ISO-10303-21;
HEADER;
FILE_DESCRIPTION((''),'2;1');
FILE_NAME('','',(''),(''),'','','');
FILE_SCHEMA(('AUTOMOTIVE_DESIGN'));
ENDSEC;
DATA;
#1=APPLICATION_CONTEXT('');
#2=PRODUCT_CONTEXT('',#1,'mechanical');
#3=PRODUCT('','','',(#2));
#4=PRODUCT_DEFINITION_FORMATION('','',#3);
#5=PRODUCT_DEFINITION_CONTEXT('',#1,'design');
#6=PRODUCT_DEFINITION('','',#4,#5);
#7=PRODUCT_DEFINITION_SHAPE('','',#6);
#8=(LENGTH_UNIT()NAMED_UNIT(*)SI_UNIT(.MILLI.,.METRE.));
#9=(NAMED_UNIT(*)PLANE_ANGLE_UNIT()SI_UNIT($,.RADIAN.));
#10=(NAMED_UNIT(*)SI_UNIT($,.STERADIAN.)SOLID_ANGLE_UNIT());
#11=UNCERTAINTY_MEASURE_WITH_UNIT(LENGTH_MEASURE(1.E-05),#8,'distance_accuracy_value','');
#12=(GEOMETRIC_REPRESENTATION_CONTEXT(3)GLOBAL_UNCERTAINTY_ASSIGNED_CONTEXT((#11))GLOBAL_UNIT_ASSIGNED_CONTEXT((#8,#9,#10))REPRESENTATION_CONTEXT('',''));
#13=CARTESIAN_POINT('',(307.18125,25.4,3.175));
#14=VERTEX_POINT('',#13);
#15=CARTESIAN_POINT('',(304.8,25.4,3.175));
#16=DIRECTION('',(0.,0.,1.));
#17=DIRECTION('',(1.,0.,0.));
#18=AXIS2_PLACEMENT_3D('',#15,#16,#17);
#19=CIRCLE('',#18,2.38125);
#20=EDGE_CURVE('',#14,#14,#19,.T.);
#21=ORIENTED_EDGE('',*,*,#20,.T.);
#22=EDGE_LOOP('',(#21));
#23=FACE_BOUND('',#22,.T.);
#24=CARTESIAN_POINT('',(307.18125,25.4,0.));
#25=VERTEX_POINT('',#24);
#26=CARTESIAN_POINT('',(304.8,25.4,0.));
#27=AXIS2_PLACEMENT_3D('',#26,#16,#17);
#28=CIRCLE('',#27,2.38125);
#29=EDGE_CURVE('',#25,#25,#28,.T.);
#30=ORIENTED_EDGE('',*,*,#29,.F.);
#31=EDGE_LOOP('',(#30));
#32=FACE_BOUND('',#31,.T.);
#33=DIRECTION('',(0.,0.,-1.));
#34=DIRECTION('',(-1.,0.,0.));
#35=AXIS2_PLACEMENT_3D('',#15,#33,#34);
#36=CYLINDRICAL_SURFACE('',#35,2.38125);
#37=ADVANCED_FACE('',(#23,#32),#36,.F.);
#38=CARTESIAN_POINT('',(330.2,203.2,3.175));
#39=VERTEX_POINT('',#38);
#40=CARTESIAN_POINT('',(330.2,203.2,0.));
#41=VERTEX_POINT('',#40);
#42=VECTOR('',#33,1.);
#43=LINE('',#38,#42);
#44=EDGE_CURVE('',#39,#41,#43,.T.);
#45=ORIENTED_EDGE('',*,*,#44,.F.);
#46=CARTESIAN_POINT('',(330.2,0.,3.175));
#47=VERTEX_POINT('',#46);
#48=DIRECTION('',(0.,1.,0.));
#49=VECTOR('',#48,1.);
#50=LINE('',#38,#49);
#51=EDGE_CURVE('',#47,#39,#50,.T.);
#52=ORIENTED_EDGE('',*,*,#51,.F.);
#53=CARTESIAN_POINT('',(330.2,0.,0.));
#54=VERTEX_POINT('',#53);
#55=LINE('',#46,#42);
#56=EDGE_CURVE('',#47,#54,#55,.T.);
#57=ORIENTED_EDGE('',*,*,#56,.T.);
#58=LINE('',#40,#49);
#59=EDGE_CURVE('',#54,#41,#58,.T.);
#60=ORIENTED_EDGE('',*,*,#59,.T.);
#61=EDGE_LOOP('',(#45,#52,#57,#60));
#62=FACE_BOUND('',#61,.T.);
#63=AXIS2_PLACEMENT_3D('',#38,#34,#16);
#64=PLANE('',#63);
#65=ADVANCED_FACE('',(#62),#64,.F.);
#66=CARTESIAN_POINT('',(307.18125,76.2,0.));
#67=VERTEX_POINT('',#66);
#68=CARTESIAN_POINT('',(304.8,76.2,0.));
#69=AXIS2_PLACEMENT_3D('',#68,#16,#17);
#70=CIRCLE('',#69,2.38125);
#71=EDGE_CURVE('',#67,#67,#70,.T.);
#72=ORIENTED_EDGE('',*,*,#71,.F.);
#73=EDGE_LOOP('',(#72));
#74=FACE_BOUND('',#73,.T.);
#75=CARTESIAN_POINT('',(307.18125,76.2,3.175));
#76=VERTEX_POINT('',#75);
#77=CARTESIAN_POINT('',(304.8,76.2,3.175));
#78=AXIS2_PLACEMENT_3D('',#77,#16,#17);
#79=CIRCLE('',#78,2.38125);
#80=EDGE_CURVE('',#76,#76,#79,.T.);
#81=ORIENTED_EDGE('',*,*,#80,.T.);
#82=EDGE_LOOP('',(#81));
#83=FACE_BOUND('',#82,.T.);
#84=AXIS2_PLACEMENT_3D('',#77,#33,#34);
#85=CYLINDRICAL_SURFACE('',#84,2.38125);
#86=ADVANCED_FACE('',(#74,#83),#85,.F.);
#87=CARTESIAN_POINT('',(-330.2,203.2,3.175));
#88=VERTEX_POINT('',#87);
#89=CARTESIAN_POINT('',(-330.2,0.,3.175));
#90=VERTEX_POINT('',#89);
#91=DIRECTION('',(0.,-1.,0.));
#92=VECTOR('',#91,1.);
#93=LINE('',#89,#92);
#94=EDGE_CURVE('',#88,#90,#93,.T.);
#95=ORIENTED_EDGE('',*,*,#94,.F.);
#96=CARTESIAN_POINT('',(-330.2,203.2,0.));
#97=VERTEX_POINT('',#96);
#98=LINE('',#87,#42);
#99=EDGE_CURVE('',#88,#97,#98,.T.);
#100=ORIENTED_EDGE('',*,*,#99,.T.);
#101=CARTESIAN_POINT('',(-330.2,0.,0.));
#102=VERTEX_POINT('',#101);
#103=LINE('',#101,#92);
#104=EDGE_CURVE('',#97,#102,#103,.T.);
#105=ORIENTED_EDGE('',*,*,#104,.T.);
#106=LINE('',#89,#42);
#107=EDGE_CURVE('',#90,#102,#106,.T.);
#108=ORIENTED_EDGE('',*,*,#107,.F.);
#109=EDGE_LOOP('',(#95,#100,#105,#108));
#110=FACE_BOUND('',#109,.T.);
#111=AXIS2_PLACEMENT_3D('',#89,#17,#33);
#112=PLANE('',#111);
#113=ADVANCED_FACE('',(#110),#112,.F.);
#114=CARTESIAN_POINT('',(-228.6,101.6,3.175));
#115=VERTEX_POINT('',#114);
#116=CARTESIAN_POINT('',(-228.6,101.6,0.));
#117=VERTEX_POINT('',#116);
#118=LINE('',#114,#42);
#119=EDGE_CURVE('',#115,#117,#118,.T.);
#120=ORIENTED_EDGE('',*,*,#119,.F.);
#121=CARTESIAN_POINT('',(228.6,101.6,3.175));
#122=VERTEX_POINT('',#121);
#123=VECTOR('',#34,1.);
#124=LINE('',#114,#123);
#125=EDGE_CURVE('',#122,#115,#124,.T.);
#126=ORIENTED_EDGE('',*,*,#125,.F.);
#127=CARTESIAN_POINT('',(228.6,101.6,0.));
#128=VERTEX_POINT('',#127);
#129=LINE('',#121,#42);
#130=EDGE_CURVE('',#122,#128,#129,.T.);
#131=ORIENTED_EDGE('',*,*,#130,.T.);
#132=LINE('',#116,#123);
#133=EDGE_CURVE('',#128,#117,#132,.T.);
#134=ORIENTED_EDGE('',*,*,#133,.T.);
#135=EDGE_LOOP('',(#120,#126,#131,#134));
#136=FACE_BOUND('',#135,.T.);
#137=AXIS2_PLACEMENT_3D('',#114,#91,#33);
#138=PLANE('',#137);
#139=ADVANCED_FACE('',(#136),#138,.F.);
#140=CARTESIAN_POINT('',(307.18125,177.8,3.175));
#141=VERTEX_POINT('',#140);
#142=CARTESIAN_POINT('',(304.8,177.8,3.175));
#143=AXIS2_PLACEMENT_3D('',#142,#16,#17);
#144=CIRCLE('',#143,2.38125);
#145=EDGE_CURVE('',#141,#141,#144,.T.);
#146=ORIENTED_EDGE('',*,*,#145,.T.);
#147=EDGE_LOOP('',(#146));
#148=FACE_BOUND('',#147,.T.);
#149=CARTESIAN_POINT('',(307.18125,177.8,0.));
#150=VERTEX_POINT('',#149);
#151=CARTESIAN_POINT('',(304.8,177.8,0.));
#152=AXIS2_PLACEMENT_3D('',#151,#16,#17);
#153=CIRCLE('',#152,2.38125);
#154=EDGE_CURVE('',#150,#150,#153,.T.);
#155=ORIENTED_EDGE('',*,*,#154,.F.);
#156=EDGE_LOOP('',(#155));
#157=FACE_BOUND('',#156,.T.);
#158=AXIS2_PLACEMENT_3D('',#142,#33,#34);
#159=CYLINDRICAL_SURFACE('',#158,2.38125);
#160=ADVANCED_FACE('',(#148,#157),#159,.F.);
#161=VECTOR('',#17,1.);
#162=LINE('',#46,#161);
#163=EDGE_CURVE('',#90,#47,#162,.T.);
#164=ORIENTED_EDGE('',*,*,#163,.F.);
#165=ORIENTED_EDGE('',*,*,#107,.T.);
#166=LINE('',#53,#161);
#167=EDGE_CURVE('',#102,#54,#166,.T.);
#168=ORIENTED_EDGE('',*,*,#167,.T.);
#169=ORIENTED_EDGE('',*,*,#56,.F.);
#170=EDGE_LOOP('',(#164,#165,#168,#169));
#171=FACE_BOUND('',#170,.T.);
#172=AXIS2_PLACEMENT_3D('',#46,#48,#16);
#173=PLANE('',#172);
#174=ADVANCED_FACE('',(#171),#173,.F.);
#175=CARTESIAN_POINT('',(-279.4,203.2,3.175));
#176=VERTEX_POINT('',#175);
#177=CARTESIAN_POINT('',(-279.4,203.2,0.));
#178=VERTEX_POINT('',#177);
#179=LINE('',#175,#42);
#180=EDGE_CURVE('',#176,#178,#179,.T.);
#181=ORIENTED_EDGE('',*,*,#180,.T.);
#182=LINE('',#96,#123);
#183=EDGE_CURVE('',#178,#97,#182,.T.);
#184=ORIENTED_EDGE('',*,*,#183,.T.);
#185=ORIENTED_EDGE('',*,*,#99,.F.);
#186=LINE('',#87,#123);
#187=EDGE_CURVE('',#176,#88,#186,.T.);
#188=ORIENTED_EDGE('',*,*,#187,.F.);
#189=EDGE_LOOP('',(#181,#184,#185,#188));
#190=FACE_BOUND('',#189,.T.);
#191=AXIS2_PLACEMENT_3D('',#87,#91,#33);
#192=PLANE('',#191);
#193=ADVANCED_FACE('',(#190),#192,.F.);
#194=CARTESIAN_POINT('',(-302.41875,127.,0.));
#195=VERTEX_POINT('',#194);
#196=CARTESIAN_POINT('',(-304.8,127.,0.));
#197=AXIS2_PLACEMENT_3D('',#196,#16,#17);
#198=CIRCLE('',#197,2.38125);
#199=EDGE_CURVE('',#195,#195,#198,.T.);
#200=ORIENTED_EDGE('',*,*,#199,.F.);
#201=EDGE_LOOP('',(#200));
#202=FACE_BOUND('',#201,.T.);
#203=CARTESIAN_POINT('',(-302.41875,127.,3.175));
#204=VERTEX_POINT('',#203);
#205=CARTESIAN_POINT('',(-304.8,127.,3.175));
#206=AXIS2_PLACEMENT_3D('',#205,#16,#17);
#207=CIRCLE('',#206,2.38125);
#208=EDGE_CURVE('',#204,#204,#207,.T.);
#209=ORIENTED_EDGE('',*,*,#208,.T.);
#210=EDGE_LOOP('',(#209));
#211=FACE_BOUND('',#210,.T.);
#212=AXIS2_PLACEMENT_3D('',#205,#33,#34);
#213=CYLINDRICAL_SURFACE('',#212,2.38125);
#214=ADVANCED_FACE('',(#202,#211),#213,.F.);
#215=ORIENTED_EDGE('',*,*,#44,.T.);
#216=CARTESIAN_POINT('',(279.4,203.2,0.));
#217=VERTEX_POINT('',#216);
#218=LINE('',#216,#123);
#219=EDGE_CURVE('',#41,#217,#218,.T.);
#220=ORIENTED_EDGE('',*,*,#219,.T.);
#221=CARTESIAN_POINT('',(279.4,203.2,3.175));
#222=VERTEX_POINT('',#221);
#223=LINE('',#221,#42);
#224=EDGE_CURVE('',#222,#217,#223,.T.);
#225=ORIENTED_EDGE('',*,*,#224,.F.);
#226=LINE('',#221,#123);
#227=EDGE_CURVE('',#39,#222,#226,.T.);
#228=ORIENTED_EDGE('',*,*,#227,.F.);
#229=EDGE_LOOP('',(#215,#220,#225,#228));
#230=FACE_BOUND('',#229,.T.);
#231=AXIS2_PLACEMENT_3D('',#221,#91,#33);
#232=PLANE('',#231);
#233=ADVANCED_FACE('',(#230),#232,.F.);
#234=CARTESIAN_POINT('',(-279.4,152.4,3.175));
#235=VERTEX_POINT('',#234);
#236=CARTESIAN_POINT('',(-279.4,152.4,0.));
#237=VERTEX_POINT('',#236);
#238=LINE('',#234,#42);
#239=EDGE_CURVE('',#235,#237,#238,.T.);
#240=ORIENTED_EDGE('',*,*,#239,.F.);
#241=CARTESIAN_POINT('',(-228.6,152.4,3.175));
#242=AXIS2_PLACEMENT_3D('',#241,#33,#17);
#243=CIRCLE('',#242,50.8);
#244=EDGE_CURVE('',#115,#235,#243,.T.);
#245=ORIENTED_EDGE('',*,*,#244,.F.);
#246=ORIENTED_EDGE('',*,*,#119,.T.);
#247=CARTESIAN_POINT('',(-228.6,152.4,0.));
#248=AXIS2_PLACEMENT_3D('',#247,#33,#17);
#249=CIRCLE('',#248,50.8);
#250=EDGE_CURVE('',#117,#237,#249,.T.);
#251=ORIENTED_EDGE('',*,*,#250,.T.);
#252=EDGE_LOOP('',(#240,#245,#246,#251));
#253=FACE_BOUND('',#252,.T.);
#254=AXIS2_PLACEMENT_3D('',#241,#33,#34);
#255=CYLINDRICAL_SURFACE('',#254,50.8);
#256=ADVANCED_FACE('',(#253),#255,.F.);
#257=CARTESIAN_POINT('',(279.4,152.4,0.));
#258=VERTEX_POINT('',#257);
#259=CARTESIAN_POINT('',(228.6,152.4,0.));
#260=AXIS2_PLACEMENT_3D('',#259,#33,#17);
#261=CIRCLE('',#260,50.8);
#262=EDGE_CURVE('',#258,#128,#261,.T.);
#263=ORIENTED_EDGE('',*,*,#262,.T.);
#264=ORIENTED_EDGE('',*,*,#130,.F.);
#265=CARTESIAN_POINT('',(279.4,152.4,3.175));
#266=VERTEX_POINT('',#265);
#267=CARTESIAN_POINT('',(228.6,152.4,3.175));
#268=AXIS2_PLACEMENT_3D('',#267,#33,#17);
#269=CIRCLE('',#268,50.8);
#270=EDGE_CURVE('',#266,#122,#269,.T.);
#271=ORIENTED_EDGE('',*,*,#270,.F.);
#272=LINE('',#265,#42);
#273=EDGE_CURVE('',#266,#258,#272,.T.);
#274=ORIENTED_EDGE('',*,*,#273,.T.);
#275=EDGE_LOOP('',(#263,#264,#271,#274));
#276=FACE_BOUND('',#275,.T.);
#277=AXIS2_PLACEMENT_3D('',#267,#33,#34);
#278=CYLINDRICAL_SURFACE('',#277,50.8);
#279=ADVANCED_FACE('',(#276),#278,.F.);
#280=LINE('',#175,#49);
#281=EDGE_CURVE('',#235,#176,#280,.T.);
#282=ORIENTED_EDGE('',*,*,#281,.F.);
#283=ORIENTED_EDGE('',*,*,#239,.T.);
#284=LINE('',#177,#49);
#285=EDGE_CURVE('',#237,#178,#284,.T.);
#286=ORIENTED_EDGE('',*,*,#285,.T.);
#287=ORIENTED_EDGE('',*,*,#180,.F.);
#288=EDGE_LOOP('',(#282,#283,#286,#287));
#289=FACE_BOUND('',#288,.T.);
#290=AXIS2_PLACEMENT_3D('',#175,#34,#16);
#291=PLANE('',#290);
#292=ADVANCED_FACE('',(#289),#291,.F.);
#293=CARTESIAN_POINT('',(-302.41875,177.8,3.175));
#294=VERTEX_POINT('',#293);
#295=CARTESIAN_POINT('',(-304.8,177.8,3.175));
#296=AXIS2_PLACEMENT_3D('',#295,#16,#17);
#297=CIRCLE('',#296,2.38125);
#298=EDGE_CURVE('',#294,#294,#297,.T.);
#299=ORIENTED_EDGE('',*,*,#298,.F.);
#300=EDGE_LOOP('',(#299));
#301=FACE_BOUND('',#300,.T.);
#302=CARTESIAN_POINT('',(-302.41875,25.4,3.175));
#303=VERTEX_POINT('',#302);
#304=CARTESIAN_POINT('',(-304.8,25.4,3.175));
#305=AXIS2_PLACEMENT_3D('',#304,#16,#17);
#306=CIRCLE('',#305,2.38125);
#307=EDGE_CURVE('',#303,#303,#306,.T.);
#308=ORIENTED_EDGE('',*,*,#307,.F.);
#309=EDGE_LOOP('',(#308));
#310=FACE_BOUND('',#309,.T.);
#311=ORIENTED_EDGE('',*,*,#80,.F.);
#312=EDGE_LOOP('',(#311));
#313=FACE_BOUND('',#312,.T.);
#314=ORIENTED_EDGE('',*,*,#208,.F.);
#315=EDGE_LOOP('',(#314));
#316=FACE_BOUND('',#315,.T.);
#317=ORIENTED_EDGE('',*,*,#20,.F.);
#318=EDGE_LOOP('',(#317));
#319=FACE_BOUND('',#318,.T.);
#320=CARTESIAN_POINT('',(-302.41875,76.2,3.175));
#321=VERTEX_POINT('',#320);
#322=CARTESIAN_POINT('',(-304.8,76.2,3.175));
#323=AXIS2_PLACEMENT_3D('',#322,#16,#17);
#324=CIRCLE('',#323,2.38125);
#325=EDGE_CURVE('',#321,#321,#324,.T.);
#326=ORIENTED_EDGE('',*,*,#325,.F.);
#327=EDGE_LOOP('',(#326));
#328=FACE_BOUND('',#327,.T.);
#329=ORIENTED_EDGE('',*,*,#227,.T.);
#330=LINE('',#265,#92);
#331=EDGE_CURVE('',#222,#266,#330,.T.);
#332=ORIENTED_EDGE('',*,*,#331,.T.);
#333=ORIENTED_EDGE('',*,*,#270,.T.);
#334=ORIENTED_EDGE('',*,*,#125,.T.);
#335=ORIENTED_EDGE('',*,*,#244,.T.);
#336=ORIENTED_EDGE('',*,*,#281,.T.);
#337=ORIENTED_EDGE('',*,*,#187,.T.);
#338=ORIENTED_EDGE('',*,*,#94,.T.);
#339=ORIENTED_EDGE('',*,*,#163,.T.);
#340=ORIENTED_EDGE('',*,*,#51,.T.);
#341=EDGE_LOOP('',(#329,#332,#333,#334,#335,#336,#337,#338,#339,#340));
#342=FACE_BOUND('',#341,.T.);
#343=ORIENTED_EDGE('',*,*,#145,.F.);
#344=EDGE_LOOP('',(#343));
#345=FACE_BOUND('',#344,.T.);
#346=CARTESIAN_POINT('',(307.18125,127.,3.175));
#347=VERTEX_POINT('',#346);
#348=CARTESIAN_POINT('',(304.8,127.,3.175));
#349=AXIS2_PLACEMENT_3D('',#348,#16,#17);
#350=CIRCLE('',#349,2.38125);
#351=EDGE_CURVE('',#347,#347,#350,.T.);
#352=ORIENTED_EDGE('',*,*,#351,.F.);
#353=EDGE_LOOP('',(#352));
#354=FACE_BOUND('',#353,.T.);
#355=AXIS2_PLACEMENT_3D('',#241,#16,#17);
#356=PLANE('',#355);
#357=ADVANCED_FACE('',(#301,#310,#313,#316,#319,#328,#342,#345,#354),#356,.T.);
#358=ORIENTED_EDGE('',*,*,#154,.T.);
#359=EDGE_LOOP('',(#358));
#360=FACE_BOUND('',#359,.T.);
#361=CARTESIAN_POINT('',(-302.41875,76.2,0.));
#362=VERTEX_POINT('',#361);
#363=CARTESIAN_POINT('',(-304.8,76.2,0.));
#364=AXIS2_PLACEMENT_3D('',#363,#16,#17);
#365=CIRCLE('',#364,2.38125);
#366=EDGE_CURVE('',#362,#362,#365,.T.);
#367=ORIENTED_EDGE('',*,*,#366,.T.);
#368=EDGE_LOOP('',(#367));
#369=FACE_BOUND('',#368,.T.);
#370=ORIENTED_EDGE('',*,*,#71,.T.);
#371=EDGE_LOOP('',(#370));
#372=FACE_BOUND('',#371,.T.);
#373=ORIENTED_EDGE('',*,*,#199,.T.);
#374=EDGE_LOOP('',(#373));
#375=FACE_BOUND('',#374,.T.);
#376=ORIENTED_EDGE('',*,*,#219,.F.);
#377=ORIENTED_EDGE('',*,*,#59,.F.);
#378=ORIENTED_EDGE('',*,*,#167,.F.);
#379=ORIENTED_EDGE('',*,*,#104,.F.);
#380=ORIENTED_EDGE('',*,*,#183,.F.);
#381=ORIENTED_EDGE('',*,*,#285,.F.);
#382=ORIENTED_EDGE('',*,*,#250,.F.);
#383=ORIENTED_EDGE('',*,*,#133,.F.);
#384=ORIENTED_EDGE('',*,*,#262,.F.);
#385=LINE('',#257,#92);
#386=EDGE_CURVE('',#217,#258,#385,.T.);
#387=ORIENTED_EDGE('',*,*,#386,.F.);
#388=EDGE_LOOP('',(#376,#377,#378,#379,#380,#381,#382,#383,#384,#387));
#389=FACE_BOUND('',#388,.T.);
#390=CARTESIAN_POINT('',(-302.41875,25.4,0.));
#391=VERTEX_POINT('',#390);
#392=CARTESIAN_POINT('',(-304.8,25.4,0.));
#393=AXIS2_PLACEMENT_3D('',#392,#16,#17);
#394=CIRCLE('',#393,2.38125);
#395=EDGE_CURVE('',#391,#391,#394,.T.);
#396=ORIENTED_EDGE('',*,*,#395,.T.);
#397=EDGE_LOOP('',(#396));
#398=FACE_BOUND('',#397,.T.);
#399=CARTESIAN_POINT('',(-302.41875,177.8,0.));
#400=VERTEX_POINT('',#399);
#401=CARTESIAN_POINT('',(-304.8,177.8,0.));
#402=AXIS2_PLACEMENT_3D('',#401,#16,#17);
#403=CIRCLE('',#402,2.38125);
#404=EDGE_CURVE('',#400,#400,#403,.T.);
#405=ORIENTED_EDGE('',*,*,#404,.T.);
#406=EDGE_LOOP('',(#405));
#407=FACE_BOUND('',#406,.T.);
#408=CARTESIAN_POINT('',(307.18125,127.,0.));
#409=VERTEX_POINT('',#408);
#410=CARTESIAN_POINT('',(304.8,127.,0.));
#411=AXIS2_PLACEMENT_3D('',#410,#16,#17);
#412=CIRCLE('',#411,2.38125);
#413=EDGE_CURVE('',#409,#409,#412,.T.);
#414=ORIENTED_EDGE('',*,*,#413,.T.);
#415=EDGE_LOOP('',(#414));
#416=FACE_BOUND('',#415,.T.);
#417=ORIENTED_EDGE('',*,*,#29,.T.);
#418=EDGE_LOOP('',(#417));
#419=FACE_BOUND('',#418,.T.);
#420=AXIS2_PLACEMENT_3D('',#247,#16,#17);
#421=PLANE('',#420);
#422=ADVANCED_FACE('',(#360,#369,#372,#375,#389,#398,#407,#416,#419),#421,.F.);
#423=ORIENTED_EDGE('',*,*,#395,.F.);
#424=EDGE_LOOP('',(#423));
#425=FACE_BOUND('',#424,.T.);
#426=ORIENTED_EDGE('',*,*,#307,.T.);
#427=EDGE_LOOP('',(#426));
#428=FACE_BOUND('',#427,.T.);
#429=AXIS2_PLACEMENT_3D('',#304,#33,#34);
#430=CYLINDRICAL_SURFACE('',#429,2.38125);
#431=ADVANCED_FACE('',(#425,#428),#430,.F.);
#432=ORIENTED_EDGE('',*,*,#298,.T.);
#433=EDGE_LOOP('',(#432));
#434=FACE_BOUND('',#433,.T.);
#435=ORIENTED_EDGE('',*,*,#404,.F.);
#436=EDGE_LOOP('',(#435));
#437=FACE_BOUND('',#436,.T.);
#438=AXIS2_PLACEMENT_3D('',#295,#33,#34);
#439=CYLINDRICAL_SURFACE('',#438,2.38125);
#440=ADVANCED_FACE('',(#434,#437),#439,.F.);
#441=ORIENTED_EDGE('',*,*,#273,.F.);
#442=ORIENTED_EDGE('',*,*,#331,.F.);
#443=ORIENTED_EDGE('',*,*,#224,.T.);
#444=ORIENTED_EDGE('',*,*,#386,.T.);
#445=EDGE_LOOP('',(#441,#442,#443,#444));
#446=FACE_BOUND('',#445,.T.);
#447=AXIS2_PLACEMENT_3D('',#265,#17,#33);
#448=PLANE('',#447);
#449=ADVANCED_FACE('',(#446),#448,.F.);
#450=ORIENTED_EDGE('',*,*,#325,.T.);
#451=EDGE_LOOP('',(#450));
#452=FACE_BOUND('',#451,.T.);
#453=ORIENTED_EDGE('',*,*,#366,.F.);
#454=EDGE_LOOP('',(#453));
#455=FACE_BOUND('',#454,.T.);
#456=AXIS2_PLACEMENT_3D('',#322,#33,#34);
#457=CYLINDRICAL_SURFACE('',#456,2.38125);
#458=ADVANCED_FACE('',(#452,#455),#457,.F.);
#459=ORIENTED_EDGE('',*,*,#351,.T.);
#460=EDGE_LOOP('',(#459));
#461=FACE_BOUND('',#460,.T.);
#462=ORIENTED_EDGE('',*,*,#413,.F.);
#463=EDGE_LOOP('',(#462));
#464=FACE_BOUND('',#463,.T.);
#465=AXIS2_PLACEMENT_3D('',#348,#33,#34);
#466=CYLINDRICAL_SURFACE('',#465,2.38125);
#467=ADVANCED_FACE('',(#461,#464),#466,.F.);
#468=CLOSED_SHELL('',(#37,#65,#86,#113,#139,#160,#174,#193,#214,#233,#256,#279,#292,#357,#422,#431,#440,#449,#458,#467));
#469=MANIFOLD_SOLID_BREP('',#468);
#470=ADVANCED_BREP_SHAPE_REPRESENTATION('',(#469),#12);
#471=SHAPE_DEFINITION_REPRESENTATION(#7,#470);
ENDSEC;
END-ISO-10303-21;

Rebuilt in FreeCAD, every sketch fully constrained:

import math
import FreeCAD as App
import Part
import Sketcher
Q = App.Units.Quantity

doc = App.newDocument("Part")
body = doc.addObject("PartDesign::Body", "Body")

sketch1 = body.newObject("Sketcher::SketchObject", "Sketch")
sketch1.AttachmentSupport = (doc.getObject("XY_Plane"), [""])
sketch1.MapMode = "FlatFace"
sketch1.addGeometry([
    Part.LineSegment(App.Vector(-330.2, 0, 0), App.Vector(330.2, 0, 0)),
    Part.LineSegment(App.Vector(330.2, 0, 0), App.Vector(330.2, 203.2, 0)),
    Part.LineSegment(App.Vector(330.2, 203.2, 0), App.Vector(279.4, 203.2, 0)),
    Part.LineSegment(App.Vector(279.4, 203.2, 0), App.Vector(279.4, 152.4, 0)),
    Part.ArcOfCircle(Part.Circle(App.Vector(228.6, 152.4, 0), App.Vector(0, 0, 1), 50.8), math.radians(-90), math.radians(0)),
    Part.LineSegment(App.Vector(228.6, 101.6, 0), App.Vector(-228.6, 101.6, 0)),
    Part.ArcOfCircle(Part.Circle(App.Vector(-228.6, 152.4, 0), App.Vector(0, 0, 1), 50.8), math.radians(-180), math.radians(-90)),
    Part.LineSegment(App.Vector(-279.4, 152.4, 0), App.Vector(-279.4, 203.2, 0)),
    Part.LineSegment(App.Vector(-279.4, 203.2, 0), App.Vector(-330.2, 203.2, 0)),
    Part.LineSegment(App.Vector(-330.2, 203.2, 0), App.Vector(-330.2, 0, 0)),
    Part.Circle(App.Vector(304.8, 25.4, 0), App.Vector(0, 0, 1), 2.4),
    Part.Circle(App.Vector(304.8, 76.2, 0), App.Vector(0, 0, 1), 2.4),
    Part.Circle(App.Vector(-304.8, 25.4, 0), App.Vector(0, 0, 1), 2.4),
    Part.Circle(App.Vector(-304.8, 76.2, 0), App.Vector(0, 0, 1), 2.4),
    Part.Circle(App.Vector(304.8, 127, 0), App.Vector(0, 0, 1), 2.4),
    Part.Circle(App.Vector(304.8, 177.8, 0), App.Vector(0, 0, 1), 2.4),
    Part.Circle(App.Vector(-304.8, 127, 0), App.Vector(0, 0, 1), 2.4),
    Part.Circle(App.Vector(-304.8, 177.8, 0), App.Vector(0, 0, 1), 2.4),
], False)
sketch1.addConstraint([
    Sketcher.Constraint("Coincident", 0, 2, 1, 1),
    Sketcher.Constraint("Coincident", 1, 2, 2, 1),
    Sketcher.Constraint("Coincident", 2, 2, 3, 1),
    Sketcher.Constraint("Tangent", 3, 2, 4, 2),
    Sketcher.Constraint("Tangent", 4, 1, 5, 1),
    Sketcher.Constraint("Tangent", 5, 2, 6, 2),
    Sketcher.Constraint("Tangent", 6, 1, 7, 1),
    Sketcher.Constraint("Coincident", 7, 2, 8, 1),
    Sketcher.Constraint("Coincident", 8, 2, 9, 1),
    Sketcher.Constraint("Coincident", 9, 2, 0, 1),
    Sketcher.Constraint("Horizontal", 0),
    Sketcher.Constraint("Vertical", 1),
    Sketcher.Constraint("Horizontal", 2),
    Sketcher.Constraint("Vertical", 3),
    Sketcher.Constraint("Horizontal", 5),
    Sketcher.Constraint("Vertical", 7),
    Sketcher.Constraint("Horizontal", 8),
    Sketcher.Constraint("Vertical", 9),
    Sketcher.Constraint("Equal", 4, 6),
    Sketcher.Constraint("Equal", 10, 11),
    Sketcher.Constraint("Equal", 11, 12),
    Sketcher.Constraint("Equal", 12, 13),
    Sketcher.Constraint("Equal", 13, 14),
    Sketcher.Constraint("Equal", 14, 15),
    Sketcher.Constraint("Equal", 15, 16),
    Sketcher.Constraint("Equal", 16, 17),
    Sketcher.Constraint("Symmetric", 0, 2, 9, 2, -1, 1),
    Sketcher.Constraint("Symmetric", 10, 3, 12, 3, -2),
    Sketcher.Constraint("Symmetric", 11, 3, 13, 3, -2),
    Sketcher.Constraint("Symmetric", 14, 3, 16, 3, -2),
    Sketcher.Constraint("Symmetric", 15, 3, 17, 3, -2),
    Sketcher.Constraint("Symmetric", 2, 2, 7, 2, -2),
    Sketcher.Constraint("Vertical", 10, 3, 11, 3),
    Sketcher.Constraint("Vertical", 11, 3, 14, 3),
    Sketcher.Constraint("Vertical", 14, 3, 15, 3),
    Sketcher.Constraint("Equal", 8, 3),
    Sketcher.Constraint("Radius", 4, Q("2 in")),
    Sketcher.Constraint("DistanceX", 0, 1, 0, 2, Q("26 in")),
    Sketcher.Constraint("DistanceX", 2, 2, 2, 1, Q("2 in")),
    Sketcher.Constraint("DistanceY", 1, 1, 1, 2, Q("8 in")),
    Sketcher.Constraint("Diameter", 10, Q("0.1875 in")),
    Sketcher.Constraint("DistanceX", -1, 1, 10, 3, Q("12 in")),
    Sketcher.Constraint("DistanceY", -1, 1, 10, 3, Q("1 in")),
    Sketcher.Constraint("DistanceY", -1, 1, 11, 3, Q("3 in")),
    Sketcher.Constraint("DistanceY", -1, 1, 14, 3, Q("5 in")),
    Sketcher.Constraint("DistanceY", -1, 1, 15, 3, Q("7 in")),
])
pad1 = body.newObject("PartDesign::Pad", "Pad")
pad1.Profile = sketch1
pad1.Length = Q("0.125 in")

doc.recompute()
